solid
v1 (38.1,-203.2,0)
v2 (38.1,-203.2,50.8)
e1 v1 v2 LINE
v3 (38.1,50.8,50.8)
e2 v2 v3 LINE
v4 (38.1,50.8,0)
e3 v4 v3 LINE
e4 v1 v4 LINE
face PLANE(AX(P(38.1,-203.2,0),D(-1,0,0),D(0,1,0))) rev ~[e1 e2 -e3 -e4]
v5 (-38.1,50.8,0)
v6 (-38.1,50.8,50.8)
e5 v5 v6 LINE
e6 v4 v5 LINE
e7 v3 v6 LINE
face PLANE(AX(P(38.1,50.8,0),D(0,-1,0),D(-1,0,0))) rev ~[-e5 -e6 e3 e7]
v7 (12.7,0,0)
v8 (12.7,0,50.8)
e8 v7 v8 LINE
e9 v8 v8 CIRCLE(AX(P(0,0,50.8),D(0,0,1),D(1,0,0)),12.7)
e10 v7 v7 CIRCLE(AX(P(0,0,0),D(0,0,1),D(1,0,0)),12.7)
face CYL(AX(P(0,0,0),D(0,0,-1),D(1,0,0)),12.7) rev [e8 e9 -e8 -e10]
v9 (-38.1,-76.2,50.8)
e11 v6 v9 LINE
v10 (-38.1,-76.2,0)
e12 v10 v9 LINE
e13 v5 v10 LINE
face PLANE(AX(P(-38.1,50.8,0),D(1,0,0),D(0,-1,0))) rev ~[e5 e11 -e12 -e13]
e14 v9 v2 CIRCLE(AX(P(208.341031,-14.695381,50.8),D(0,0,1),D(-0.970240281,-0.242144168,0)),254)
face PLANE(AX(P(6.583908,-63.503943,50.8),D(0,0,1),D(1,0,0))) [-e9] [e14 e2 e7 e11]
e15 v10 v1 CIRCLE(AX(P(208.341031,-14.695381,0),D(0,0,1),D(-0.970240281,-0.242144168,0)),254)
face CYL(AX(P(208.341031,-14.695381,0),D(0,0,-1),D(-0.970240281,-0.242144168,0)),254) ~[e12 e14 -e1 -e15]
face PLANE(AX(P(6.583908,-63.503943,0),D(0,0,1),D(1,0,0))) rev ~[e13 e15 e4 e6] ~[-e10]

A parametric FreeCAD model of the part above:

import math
import FreeCAD as App
import Part
import Sketcher
from FreeCAD import Vector
Q = App.Units.Quantity

doc = App.newDocument("Part")
body = doc.addObject("PartDesign::Body", "Body")

# Sketch on XY plane
sketch1 = doc.addObject("Sketcher::SketchObject", "Sketch")
body.addObject(sketch1)
sketch1.AttachmentSupport = (doc.XY_Plane, [""])
sketch1.MapMode = "FlatFace"
sketch1.addGeometry([
    Part.LineSegment(Vector(38, 51, 0), Vector(-38, 51, 0)),  # 0
    Part.LineSegment(Vector(-38, 51, 0), Vector(-38, -76, 0)),  # 1
    Part.ArcOfCircle(Part.Circle(Vector(208, -15, 0), Vector(0, 0, 1), 254), math.radians(-166), math.radians(-132)),  # 2
    Part.LineSegment(Vector(38, -203, 0), Vector(38, 51, 0)),  # 3
    Part.Circle(Vector(0, 0, 0), Vector(0, 0, 1), 13),  # 4
], False)
sketch1.addConstraint([
    Sketcher.Constraint("Coincident", 0, 2, 1, 1),
    Sketcher.Constraint("Coincident", 1, 2, 2, 1),
    Sketcher.Constraint("Coincident", 2, 2, 3, 1),
    Sketcher.Constraint("Coincident", 3, 2, 0, 1),
    Sketcher.Constraint("Horizontal", 0),
    Sketcher.Constraint("Vertical", 1),
    Sketcher.Constraint("Vertical", 3),
    Sketcher.Constraint("Coincident", 4, 3, -1, 1),
    Sketcher.Constraint("Diameter", 4, Q("1 in")),
    Sketcher.Constraint("Radius", 2, Q("10 in")),
    Sketcher.Constraint("DistanceX", 0, 2, 0, 1, Q("3 in")),
    Sketcher.Constraint("DistanceY", 1, 2, 1, 1, Q("5 in")),
    Sketcher.Constraint("DistanceY", 3, 1, 3, 2, Q("10 in")),
    Sketcher.Constraint("DistanceY", -1, 1, 0, 2, Q("2 in")),
    Sketcher.Constraint("DistanceX", 0, 2, -1, 1, Q("1.5 in")),
])
pad1 = doc.addObject("PartDesign::Pad", "Pad")
body.addObject(pad1)
pad1.Profile = sketch1
pad1.Length = Q("2 in")

doc.recompute()
